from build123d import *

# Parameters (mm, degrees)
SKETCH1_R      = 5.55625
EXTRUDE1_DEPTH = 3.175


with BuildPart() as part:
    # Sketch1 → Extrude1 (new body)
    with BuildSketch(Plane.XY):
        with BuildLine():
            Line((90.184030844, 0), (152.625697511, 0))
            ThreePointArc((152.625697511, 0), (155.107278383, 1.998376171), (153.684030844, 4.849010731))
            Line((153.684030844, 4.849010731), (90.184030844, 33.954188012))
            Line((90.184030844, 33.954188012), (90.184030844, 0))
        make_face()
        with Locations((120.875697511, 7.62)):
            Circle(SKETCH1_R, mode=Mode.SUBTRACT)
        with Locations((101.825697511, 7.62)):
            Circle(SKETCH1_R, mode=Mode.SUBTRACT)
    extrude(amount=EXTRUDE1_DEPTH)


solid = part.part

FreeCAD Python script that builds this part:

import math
import FreeCAD as App
import Part
import Sketcher
from FreeCAD import Vector
Q = App.Units.Quantity

doc = App.newDocument("Part")
params = doc.addObject("Spreadsheet::Sheet", "Params")
for row, (alias, value) in enumerate([
    ("sketch1_radius", "0.1 in"),
    ("sketch1_diameter", "0.4375 in"),
    ("pad1_length", "0.125 in"),
], start=1):
    params.set(f"A{row}", alias)
    params.set(f"B{row}", "=" + value)
    params.setAlias(f"B{row}", alias)

body = doc.addObject("PartDesign::Body", "Body")

# Sketch on XY plane
sketch1 = doc.addObject("Sketcher::SketchObject", "Sketch")
body.addObject(sketch1)
sketch1.AttachmentSupport = (doc.XY_Plane, [""])
sketch1.MapMode = "FlatFace"
sketch1.addGeometry([
    Part.LineSegment(Vector(90.184031, 0, 0), Vector(152.625698, 0, 0)),  # 0
    Part.ArcOfCircle(Part.Circle(Vector(152.625698, 2.54, 0), Vector(0, 0, 1), 2.54), math.radians(-90), math.radians(65.375682)),  # 1
    Part.LineSegment(Vector(153.684031, 4.849011, 0), Vector(90.184031, 33.954188, 0)),  # 2
    Part.LineSegment(Vector(90.184031, 33.954188, 0), Vector(90.184031, 0, 0)),  # 3
    Part.Circle(Vector(101.825698, 7.62, 0), Vector(0, 0, 1), 5.55625),  # 4
    Part.Circle(Vector(120.875698, 7.62, 0), Vector(0, 0, 1), 5.55625),  # 5
], False)
sketch1.addConstraint([
    Sketcher.Constraint("Tangent", 0, 2, 1, 1),
    Sketcher.Constraint("Tangent", 1, 2, 2, 1),
    Sketcher.Constraint("Coincident", 2, 2, 3, 1),
    Sketcher.Constraint("Coincident", 3, 2, 0, 1),
    Sketcher.Constraint("Horizontal", 0),
    Sketcher.Constraint("Vertical", 3),
    Sketcher.Constraint("Equal", 4, 5),
    Sketcher.Constraint("PointOnObject", 0, 2, -1),
    Sketcher.Constraint("Horizontal", 4, 3, 5, 3),
    Sketcher.Constraint("Radius", 1, Q("0.1 in")),
    Sketcher.Constraint("Diameter", 4, Q("0.4375 in")),
    Sketcher.Constraint("DistanceX", 4, 3, 1, 3, Q("2 in")),
    Sketcher.Constraint("DistanceY", -1, 1, 4, 3, Q("0.3 in")),
    Sketcher.Constraint("DistanceX", 2, 2, 1, 2, Q("2.5 in")),
    Sketcher.Constraint("DistanceX", 4, 3, 5, 3, Q("0.75 in")),
    Sketcher.Constraint("DistanceY", 3, 2, 3, 1, Q("33.954188 mm")),
    Sketcher.Constraint("DistanceX", -1, 1, 1, 2, Q("153.684031 mm")),
])
sketch1.setExpression("Constraints[9]", "Params.sketch1_radius")
sketch1.setExpression("Constraints[10]", "Params.sketch1_diameter")
pad1 = doc.addObject("PartDesign::Pad", "Pad")
body.addObject(pad1)
pad1.Profile = sketch1
pad1.setExpression("Length", "Params.pad1_length")

doc.recompute()
